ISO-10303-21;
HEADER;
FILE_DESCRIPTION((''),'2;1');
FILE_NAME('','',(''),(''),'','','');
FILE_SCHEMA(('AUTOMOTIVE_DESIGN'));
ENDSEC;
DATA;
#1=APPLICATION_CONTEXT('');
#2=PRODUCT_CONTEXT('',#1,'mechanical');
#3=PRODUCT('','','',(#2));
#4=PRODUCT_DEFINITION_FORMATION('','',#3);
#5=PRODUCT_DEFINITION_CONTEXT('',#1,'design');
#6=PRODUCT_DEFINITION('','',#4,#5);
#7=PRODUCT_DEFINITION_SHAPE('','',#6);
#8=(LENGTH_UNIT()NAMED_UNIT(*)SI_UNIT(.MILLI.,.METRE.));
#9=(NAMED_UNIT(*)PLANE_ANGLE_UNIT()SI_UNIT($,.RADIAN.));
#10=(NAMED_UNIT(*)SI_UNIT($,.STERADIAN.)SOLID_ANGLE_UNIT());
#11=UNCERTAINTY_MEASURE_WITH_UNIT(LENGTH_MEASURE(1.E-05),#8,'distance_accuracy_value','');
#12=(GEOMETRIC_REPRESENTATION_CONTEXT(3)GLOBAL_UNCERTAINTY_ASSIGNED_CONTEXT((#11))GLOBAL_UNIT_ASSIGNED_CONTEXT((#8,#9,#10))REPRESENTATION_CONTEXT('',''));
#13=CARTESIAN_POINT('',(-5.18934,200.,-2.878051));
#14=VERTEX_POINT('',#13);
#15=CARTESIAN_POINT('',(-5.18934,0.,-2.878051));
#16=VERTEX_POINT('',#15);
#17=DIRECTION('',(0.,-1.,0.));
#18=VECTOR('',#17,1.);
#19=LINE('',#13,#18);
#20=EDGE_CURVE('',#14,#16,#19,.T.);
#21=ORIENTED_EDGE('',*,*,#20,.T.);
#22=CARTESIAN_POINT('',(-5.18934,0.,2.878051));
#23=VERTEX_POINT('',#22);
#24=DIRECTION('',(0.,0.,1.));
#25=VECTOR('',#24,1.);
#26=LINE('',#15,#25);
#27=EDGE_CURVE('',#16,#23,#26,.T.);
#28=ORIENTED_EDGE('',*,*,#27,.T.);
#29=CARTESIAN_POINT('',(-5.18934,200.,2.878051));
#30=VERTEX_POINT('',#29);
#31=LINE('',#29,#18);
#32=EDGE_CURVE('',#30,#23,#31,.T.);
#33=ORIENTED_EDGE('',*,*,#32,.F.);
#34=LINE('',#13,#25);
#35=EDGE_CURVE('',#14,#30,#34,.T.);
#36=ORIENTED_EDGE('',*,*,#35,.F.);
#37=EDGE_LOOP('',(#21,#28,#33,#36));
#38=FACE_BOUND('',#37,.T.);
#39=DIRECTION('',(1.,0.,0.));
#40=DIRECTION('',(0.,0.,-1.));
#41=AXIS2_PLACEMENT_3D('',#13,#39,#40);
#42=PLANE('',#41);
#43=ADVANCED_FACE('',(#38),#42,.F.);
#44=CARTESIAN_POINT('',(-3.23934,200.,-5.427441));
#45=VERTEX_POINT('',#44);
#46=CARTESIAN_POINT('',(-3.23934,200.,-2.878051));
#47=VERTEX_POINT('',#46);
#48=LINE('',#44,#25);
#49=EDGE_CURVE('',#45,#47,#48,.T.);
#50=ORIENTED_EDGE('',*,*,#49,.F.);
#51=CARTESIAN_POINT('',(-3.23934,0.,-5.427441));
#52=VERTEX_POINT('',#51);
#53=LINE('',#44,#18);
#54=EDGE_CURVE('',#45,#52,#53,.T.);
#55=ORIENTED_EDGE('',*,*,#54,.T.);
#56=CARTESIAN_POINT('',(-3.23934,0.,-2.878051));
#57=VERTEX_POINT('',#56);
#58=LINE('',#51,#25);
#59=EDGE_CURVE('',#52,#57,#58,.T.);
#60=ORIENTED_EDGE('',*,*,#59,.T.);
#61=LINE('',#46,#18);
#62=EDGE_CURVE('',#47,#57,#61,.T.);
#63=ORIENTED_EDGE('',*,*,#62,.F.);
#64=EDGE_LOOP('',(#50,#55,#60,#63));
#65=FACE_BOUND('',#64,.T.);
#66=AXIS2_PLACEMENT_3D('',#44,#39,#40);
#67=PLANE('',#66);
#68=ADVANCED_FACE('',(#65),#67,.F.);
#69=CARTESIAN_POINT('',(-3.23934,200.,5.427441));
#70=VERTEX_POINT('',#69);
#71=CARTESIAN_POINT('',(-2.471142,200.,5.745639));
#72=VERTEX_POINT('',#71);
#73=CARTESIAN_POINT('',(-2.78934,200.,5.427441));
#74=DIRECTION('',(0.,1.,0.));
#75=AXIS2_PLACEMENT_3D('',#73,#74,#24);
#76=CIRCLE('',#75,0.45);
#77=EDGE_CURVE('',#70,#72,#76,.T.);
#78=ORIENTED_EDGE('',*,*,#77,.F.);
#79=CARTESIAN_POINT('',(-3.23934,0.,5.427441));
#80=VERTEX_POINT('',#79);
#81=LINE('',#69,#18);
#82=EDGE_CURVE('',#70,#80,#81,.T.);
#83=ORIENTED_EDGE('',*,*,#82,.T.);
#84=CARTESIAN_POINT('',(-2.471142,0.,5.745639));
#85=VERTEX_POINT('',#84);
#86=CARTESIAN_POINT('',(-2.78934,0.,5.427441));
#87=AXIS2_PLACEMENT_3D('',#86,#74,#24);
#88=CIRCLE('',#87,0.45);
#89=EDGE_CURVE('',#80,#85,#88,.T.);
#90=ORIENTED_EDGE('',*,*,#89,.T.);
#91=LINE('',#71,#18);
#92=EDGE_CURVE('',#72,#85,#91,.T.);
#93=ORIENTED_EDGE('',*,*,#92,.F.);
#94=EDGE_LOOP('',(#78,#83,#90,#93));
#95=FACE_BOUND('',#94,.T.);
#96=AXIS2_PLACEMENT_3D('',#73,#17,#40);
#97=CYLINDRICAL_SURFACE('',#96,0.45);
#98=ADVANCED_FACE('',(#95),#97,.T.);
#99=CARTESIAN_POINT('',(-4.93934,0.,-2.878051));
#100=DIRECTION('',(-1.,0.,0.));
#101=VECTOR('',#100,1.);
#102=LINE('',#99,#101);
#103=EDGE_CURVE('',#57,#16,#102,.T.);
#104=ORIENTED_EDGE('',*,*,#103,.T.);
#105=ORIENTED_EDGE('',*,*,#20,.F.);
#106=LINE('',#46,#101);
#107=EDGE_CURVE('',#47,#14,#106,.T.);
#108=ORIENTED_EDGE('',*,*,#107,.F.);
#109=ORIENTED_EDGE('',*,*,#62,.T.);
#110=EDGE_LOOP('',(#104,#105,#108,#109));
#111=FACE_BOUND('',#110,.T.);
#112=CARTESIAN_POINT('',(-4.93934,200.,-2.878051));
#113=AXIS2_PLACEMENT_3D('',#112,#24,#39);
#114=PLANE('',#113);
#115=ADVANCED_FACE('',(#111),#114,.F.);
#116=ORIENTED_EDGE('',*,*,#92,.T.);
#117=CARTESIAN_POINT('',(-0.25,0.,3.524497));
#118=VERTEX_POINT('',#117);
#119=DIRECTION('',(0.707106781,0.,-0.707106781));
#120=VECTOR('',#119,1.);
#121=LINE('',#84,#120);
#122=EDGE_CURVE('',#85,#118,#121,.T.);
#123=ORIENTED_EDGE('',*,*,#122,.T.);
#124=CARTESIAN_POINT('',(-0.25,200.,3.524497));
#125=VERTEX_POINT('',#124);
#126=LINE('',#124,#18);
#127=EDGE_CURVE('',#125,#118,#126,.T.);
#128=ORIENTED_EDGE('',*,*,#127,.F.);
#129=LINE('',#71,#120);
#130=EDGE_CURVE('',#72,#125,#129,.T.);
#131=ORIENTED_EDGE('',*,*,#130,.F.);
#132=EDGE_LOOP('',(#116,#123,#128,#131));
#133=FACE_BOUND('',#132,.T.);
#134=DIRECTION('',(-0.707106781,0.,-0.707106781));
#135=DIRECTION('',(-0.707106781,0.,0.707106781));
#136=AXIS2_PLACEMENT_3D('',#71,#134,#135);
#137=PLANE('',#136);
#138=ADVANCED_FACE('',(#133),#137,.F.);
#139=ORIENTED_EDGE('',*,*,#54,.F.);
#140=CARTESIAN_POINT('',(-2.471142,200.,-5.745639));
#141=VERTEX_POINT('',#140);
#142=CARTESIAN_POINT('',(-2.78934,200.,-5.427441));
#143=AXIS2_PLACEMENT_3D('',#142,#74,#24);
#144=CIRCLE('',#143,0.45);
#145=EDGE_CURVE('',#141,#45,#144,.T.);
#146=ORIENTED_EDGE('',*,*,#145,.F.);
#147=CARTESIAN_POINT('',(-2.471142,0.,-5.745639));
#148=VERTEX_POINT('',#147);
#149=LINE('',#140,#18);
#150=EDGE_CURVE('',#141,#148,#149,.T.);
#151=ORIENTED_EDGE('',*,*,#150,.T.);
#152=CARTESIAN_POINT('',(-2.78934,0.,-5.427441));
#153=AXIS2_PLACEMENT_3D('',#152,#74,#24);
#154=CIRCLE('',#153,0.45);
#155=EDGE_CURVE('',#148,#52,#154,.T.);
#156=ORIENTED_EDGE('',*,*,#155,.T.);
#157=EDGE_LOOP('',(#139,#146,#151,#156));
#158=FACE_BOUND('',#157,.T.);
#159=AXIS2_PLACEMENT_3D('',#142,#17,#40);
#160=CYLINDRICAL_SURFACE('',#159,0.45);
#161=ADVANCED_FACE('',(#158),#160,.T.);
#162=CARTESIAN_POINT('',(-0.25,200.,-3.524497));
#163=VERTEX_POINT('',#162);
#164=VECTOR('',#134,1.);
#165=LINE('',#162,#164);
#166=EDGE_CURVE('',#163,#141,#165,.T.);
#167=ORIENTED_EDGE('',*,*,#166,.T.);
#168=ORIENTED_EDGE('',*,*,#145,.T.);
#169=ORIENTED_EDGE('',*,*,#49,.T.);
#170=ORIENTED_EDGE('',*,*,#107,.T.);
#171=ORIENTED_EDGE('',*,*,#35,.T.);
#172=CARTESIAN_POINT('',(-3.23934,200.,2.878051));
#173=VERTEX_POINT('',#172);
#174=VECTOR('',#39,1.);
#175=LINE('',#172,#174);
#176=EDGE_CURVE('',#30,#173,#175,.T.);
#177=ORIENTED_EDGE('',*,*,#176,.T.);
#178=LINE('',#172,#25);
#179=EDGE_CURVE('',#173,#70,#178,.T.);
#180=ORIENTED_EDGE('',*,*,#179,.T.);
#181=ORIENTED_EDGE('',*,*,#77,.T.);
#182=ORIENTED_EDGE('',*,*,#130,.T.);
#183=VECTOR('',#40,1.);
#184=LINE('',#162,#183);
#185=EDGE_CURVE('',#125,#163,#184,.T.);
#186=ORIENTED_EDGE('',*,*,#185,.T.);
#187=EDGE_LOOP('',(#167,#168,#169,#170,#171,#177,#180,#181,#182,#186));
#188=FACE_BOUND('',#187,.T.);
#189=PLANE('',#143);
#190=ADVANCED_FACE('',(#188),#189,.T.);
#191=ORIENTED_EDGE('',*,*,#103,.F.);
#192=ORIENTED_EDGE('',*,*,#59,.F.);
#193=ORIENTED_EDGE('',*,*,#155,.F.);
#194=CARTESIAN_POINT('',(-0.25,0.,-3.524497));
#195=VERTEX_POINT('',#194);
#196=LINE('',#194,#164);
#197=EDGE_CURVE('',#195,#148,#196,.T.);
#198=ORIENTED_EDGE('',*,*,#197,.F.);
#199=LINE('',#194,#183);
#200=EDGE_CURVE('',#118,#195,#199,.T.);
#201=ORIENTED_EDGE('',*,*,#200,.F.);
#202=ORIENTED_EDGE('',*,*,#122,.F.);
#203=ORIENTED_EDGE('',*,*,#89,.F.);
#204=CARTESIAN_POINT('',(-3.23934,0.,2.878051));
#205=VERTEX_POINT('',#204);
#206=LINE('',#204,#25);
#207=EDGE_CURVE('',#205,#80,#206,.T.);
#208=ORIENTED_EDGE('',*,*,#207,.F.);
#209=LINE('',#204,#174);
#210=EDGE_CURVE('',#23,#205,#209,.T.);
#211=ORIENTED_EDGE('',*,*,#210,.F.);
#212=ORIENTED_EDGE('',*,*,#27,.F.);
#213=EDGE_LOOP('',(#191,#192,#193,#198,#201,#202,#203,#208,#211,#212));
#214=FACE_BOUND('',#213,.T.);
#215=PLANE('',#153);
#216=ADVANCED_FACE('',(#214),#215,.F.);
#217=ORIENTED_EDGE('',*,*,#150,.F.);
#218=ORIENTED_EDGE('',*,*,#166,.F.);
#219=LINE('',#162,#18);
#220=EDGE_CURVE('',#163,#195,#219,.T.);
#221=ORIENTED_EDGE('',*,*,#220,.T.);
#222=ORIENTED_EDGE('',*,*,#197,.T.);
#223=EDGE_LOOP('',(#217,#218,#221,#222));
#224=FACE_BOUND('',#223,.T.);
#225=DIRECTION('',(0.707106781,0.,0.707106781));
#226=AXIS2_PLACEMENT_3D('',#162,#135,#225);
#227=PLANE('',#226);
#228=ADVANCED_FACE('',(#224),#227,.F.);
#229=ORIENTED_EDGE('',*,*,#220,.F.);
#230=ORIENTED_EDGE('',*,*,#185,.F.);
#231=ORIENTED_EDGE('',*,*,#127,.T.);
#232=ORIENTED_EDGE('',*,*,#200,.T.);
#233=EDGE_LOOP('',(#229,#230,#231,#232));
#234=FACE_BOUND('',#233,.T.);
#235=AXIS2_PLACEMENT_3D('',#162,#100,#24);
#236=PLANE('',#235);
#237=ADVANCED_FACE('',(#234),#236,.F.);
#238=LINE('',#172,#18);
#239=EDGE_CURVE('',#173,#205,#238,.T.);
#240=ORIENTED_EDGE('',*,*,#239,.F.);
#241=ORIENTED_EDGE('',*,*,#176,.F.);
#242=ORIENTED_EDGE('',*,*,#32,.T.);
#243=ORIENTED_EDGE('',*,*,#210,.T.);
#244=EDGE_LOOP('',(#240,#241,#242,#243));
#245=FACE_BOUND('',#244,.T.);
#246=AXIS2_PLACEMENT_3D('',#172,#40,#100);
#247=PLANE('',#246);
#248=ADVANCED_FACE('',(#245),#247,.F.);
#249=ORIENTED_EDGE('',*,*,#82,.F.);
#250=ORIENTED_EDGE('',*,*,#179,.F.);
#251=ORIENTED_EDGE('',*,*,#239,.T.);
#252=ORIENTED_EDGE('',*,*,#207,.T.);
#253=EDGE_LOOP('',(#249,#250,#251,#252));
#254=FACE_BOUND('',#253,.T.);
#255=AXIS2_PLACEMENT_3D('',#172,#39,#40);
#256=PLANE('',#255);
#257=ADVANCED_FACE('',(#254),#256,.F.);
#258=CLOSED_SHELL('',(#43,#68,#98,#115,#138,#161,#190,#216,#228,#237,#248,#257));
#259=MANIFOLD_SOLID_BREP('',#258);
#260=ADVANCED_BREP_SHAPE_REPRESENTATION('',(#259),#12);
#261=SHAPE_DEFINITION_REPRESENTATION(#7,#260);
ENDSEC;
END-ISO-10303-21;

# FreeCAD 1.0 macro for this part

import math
import FreeCAD as App
import Part
import Sketcher

V = App.Vector
Q = App.Units.Quantity

doc = App.newDocument("Part")
body = doc.addObject("PartDesign::Body", "Body")

# Sketch on XZ plane
sketch1 = doc.addObject("Sketcher::SketchObject", "Sketch")
body.addObject(sketch1)
sketch1.AttachmentSupport = (doc.XZ_Plane, [""])
sketch1.MapMode = "FlatFace"
sketch1.addGeometry(Part.LineSegment(V(-3.23934, 2.878051, 0), V(-3.23934, 5.427441, 0)), False)
sketch1.addGeometry(Part.ArcOfCircle(Part.Circle(V(-2.78934, 5.427441, 0), V(0, 0, 1), 0.45), math.radians(45), math.radians(180)), False)
sketch1.addGeometry(Part.LineSegment(V(-2.471142, 5.745639, 0), V(-0.25, 3.524497, 0)), False)
sketch1.addGeometry(Part.LineSegment(V(-0.25, 3.524497, 0), V(-0.25, -3.524497, 0)), False)
sketch1.addGeometry(Part.LineSegment(V(-0.25, -3.524497, 0), V(-2.471142, -5.745639, 0)), False)
sketch1.addGeometry(Part.ArcOfCircle(Part.Circle(V(-2.78934, -5.427441, 0), V(0, 0, 1), 0.45), math.radians(-180), math.radians(-45)), False)
sketch1.addGeometry(Part.LineSegment(V(-3.23934, -5.427441, 0), V(-3.23934, -2.878051, 0)), False)
sketch1.addGeometry(Part.LineSegment(V(-3.23934, -2.878051, 0), V(-5.18934, -2.878051, 0)), False)
sketch1.addGeometry(Part.LineSegment(V(-5.18934, -2.878051, 0), V(-5.18934, 2.878051, 0)), False)
sketch1.addGeometry(Part.LineSegment(V(-5.18934, 2.878051, 0), V(-3.23934, 2.878051, 0)), False)
sketch1.addConstraint(Sketcher.Constraint("Tangent", 0, 2, 1, 2))
sketch1.addConstraint(Sketcher.Constraint("Tangent", 1, 1, 2, 1))
sketch1.addConstraint(Sketcher.Constraint("Coincident", 2, 2, 3, 1))
sketch1.addConstraint(Sketcher.Constraint("Coincident", 3, 2, 4, 1))
sketch1.addConstraint(Sketcher.Constraint("Tangent", 4, 2, 5, 2))
sketch1.addConstraint(Sketcher.Constraint("Tangent", 5, 1, 6, 1))
sketch1.addConstraint(Sketcher.Constraint("Coincident", 6, 2, 7, 1))
sketch1.addConstraint(Sketcher.Constraint("Coincident", 7, 2, 8, 1))
sketch1.addConstraint(Sketcher.Constraint("Coincident", 8, 2, 9, 1))
sketch1.addConstraint(Sketcher.Constraint("Coincident", 9, 2, 0, 1))
sketch1.addConstraint(Sketcher.Constraint("Vertical", 0))
sketch1.addConstraint(Sketcher.Constraint("Vertical", 3))
sketch1.addConstraint(Sketcher.Constraint("Vertical", 6))
sketch1.addConstraint(Sketcher.Constraint("Horizontal", 7))
sketch1.addConstraint(Sketcher.Constraint("Vertical", 8))
sketch1.addConstraint(Sketcher.Constraint("Horizontal", 9))
sketch1.addConstraint(Sketcher.Constraint("Equal", 1, 5))
sketch1.addConstraint(Sketcher.Constraint("Symmetric", 1, 3, 5, 3, -1))
sketch1.addConstraint(Sketcher.Constraint("Perpendicular", 2, 4))
sketch1.addConstraint(Sketcher.Constraint("Vertical", 1, 1, 4, 2))
sketch1.addConstraint(Sketcher.Constraint("Equal", 0, 6))
sketch1.addConstraint(Sketcher.Constraint("Radius", 1, Q("0.45 mm")))
sketch1.addConstraint(Sketcher.Constraint("DistanceX", 7, 2, 7, 1, Q("1.95 mm")))
sketch1.addConstraint(Sketcher.Constraint("DistanceX", 2, 2, -1, 1, Q("0.25 mm")))
sketch1.addConstraint(Sketcher.Constraint("DistanceY", 8, 1, 8, 2, Q("5.756102 mm")))
sketch1.addConstraint(Sketcher.Constraint("DistanceY", 0, 1, 0, 2, Q("2.54939 mm")))
sketch1.addConstraint(Sketcher.Constraint("Distance", 2, Q("3.141169 mm")))
pad1 = doc.addObject("PartDesign::Pad", "Pad")
body.addObject(pad1)
pad1.Profile = sketch1
pad1.Length = 200
pad1.Reversed = True

doc.recompute()
